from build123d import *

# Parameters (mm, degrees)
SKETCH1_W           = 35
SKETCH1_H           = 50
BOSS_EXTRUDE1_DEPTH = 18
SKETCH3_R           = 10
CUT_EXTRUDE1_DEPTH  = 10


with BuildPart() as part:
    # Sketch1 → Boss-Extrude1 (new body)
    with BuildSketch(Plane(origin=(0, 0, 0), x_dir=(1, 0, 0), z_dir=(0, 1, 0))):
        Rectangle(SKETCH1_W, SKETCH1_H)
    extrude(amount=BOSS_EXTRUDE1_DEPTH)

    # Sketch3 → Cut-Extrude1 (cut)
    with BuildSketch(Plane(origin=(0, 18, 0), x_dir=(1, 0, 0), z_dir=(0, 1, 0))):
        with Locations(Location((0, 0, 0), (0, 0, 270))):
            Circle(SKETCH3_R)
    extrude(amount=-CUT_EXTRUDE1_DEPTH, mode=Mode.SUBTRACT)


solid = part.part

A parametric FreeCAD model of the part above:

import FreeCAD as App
import Part
import Sketcher
from FreeCAD import Vector

doc = App.newDocument("Part")
body = doc.addObject("PartDesign::Body", "Body")

sketch1 = doc.addObject("Sketcher::SketchObject", "Sketch")
body.addObject(sketch1)
sketch1.AttachmentSupport = (doc.XZ_Plane, [""])
sketch1.MapMode = "FlatFace"
sketch1.addGeometry([
    Part.LineSegment(Vector(-18, -25, 0), Vector(-18, 25, 0)),
    Part.LineSegment(Vector(-18, 25, 0), Vector(18, 25, 0)),
    Part.LineSegment(Vector(18, 25, 0), Vector(18, -25, 0)),
    Part.LineSegment(Vector(18, -25, 0), Vector(-18, -25, 0)),
], False)
sketch1.addConstraint([
    Sketcher.Constraint("Coincident", 0, 2, 1, 1),
    Sketcher.Constraint("Coincident", 1, 2, 2, 1),
    Sketcher.Constraint("Coincident", 2, 2, 3, 1),
    Sketcher.Constraint("Coincident", 3, 2, 0, 1),
    Sketcher.Constraint("Vertical", 0),
    Sketcher.Constraint("Horizontal", 1),
    Sketcher.Constraint("Vertical", 2),
    Sketcher.Constraint("Horizontal", 3),
    Sketcher.Constraint("Symmetric", 0, 2, 2, 2, -1, 1),
    Sketcher.Constraint("DistanceX", 1, 1, 1, 2, 35.0),
    Sketcher.Constraint("DistanceY", 0, 1, 0, 2, 50.0),
])
pad1 = doc.addObject("PartDesign::Pad", "Pad")
body.addObject(pad1)
pad1.Profile = sketch1
pad1.Length = 18
pad1.Reversed = True

sketch2 = doc.addObject("Sketcher::SketchObject", "Sketch001")
body.addObject(sketch2)
sketch2.AttachmentSupport = (doc.XZ_Plane, [""])
sketch2.MapMode = "FlatFace"
sketch2.AttachmentOffset = App.Placement(Vector(0, 0, -18), App.Rotation())
sketch2.addGeometry(Part.Circle(Vector(0, 0, 0), Vector(0, 0, 1), 10), False)
sketch2.addConstraint([
    Sketcher.Constraint("Coincident", 0, 3, -1, 1),
    Sketcher.Constraint("Diameter", 0, 20.0),
])
pocket1 = doc.addObject("PartDesign::Pocket", "Pocket")
body.addObject(pocket1)
pocket1.Profile = sketch2
pocket1.Length = 10
pocket1.Reversed = True

doc.recompute()
